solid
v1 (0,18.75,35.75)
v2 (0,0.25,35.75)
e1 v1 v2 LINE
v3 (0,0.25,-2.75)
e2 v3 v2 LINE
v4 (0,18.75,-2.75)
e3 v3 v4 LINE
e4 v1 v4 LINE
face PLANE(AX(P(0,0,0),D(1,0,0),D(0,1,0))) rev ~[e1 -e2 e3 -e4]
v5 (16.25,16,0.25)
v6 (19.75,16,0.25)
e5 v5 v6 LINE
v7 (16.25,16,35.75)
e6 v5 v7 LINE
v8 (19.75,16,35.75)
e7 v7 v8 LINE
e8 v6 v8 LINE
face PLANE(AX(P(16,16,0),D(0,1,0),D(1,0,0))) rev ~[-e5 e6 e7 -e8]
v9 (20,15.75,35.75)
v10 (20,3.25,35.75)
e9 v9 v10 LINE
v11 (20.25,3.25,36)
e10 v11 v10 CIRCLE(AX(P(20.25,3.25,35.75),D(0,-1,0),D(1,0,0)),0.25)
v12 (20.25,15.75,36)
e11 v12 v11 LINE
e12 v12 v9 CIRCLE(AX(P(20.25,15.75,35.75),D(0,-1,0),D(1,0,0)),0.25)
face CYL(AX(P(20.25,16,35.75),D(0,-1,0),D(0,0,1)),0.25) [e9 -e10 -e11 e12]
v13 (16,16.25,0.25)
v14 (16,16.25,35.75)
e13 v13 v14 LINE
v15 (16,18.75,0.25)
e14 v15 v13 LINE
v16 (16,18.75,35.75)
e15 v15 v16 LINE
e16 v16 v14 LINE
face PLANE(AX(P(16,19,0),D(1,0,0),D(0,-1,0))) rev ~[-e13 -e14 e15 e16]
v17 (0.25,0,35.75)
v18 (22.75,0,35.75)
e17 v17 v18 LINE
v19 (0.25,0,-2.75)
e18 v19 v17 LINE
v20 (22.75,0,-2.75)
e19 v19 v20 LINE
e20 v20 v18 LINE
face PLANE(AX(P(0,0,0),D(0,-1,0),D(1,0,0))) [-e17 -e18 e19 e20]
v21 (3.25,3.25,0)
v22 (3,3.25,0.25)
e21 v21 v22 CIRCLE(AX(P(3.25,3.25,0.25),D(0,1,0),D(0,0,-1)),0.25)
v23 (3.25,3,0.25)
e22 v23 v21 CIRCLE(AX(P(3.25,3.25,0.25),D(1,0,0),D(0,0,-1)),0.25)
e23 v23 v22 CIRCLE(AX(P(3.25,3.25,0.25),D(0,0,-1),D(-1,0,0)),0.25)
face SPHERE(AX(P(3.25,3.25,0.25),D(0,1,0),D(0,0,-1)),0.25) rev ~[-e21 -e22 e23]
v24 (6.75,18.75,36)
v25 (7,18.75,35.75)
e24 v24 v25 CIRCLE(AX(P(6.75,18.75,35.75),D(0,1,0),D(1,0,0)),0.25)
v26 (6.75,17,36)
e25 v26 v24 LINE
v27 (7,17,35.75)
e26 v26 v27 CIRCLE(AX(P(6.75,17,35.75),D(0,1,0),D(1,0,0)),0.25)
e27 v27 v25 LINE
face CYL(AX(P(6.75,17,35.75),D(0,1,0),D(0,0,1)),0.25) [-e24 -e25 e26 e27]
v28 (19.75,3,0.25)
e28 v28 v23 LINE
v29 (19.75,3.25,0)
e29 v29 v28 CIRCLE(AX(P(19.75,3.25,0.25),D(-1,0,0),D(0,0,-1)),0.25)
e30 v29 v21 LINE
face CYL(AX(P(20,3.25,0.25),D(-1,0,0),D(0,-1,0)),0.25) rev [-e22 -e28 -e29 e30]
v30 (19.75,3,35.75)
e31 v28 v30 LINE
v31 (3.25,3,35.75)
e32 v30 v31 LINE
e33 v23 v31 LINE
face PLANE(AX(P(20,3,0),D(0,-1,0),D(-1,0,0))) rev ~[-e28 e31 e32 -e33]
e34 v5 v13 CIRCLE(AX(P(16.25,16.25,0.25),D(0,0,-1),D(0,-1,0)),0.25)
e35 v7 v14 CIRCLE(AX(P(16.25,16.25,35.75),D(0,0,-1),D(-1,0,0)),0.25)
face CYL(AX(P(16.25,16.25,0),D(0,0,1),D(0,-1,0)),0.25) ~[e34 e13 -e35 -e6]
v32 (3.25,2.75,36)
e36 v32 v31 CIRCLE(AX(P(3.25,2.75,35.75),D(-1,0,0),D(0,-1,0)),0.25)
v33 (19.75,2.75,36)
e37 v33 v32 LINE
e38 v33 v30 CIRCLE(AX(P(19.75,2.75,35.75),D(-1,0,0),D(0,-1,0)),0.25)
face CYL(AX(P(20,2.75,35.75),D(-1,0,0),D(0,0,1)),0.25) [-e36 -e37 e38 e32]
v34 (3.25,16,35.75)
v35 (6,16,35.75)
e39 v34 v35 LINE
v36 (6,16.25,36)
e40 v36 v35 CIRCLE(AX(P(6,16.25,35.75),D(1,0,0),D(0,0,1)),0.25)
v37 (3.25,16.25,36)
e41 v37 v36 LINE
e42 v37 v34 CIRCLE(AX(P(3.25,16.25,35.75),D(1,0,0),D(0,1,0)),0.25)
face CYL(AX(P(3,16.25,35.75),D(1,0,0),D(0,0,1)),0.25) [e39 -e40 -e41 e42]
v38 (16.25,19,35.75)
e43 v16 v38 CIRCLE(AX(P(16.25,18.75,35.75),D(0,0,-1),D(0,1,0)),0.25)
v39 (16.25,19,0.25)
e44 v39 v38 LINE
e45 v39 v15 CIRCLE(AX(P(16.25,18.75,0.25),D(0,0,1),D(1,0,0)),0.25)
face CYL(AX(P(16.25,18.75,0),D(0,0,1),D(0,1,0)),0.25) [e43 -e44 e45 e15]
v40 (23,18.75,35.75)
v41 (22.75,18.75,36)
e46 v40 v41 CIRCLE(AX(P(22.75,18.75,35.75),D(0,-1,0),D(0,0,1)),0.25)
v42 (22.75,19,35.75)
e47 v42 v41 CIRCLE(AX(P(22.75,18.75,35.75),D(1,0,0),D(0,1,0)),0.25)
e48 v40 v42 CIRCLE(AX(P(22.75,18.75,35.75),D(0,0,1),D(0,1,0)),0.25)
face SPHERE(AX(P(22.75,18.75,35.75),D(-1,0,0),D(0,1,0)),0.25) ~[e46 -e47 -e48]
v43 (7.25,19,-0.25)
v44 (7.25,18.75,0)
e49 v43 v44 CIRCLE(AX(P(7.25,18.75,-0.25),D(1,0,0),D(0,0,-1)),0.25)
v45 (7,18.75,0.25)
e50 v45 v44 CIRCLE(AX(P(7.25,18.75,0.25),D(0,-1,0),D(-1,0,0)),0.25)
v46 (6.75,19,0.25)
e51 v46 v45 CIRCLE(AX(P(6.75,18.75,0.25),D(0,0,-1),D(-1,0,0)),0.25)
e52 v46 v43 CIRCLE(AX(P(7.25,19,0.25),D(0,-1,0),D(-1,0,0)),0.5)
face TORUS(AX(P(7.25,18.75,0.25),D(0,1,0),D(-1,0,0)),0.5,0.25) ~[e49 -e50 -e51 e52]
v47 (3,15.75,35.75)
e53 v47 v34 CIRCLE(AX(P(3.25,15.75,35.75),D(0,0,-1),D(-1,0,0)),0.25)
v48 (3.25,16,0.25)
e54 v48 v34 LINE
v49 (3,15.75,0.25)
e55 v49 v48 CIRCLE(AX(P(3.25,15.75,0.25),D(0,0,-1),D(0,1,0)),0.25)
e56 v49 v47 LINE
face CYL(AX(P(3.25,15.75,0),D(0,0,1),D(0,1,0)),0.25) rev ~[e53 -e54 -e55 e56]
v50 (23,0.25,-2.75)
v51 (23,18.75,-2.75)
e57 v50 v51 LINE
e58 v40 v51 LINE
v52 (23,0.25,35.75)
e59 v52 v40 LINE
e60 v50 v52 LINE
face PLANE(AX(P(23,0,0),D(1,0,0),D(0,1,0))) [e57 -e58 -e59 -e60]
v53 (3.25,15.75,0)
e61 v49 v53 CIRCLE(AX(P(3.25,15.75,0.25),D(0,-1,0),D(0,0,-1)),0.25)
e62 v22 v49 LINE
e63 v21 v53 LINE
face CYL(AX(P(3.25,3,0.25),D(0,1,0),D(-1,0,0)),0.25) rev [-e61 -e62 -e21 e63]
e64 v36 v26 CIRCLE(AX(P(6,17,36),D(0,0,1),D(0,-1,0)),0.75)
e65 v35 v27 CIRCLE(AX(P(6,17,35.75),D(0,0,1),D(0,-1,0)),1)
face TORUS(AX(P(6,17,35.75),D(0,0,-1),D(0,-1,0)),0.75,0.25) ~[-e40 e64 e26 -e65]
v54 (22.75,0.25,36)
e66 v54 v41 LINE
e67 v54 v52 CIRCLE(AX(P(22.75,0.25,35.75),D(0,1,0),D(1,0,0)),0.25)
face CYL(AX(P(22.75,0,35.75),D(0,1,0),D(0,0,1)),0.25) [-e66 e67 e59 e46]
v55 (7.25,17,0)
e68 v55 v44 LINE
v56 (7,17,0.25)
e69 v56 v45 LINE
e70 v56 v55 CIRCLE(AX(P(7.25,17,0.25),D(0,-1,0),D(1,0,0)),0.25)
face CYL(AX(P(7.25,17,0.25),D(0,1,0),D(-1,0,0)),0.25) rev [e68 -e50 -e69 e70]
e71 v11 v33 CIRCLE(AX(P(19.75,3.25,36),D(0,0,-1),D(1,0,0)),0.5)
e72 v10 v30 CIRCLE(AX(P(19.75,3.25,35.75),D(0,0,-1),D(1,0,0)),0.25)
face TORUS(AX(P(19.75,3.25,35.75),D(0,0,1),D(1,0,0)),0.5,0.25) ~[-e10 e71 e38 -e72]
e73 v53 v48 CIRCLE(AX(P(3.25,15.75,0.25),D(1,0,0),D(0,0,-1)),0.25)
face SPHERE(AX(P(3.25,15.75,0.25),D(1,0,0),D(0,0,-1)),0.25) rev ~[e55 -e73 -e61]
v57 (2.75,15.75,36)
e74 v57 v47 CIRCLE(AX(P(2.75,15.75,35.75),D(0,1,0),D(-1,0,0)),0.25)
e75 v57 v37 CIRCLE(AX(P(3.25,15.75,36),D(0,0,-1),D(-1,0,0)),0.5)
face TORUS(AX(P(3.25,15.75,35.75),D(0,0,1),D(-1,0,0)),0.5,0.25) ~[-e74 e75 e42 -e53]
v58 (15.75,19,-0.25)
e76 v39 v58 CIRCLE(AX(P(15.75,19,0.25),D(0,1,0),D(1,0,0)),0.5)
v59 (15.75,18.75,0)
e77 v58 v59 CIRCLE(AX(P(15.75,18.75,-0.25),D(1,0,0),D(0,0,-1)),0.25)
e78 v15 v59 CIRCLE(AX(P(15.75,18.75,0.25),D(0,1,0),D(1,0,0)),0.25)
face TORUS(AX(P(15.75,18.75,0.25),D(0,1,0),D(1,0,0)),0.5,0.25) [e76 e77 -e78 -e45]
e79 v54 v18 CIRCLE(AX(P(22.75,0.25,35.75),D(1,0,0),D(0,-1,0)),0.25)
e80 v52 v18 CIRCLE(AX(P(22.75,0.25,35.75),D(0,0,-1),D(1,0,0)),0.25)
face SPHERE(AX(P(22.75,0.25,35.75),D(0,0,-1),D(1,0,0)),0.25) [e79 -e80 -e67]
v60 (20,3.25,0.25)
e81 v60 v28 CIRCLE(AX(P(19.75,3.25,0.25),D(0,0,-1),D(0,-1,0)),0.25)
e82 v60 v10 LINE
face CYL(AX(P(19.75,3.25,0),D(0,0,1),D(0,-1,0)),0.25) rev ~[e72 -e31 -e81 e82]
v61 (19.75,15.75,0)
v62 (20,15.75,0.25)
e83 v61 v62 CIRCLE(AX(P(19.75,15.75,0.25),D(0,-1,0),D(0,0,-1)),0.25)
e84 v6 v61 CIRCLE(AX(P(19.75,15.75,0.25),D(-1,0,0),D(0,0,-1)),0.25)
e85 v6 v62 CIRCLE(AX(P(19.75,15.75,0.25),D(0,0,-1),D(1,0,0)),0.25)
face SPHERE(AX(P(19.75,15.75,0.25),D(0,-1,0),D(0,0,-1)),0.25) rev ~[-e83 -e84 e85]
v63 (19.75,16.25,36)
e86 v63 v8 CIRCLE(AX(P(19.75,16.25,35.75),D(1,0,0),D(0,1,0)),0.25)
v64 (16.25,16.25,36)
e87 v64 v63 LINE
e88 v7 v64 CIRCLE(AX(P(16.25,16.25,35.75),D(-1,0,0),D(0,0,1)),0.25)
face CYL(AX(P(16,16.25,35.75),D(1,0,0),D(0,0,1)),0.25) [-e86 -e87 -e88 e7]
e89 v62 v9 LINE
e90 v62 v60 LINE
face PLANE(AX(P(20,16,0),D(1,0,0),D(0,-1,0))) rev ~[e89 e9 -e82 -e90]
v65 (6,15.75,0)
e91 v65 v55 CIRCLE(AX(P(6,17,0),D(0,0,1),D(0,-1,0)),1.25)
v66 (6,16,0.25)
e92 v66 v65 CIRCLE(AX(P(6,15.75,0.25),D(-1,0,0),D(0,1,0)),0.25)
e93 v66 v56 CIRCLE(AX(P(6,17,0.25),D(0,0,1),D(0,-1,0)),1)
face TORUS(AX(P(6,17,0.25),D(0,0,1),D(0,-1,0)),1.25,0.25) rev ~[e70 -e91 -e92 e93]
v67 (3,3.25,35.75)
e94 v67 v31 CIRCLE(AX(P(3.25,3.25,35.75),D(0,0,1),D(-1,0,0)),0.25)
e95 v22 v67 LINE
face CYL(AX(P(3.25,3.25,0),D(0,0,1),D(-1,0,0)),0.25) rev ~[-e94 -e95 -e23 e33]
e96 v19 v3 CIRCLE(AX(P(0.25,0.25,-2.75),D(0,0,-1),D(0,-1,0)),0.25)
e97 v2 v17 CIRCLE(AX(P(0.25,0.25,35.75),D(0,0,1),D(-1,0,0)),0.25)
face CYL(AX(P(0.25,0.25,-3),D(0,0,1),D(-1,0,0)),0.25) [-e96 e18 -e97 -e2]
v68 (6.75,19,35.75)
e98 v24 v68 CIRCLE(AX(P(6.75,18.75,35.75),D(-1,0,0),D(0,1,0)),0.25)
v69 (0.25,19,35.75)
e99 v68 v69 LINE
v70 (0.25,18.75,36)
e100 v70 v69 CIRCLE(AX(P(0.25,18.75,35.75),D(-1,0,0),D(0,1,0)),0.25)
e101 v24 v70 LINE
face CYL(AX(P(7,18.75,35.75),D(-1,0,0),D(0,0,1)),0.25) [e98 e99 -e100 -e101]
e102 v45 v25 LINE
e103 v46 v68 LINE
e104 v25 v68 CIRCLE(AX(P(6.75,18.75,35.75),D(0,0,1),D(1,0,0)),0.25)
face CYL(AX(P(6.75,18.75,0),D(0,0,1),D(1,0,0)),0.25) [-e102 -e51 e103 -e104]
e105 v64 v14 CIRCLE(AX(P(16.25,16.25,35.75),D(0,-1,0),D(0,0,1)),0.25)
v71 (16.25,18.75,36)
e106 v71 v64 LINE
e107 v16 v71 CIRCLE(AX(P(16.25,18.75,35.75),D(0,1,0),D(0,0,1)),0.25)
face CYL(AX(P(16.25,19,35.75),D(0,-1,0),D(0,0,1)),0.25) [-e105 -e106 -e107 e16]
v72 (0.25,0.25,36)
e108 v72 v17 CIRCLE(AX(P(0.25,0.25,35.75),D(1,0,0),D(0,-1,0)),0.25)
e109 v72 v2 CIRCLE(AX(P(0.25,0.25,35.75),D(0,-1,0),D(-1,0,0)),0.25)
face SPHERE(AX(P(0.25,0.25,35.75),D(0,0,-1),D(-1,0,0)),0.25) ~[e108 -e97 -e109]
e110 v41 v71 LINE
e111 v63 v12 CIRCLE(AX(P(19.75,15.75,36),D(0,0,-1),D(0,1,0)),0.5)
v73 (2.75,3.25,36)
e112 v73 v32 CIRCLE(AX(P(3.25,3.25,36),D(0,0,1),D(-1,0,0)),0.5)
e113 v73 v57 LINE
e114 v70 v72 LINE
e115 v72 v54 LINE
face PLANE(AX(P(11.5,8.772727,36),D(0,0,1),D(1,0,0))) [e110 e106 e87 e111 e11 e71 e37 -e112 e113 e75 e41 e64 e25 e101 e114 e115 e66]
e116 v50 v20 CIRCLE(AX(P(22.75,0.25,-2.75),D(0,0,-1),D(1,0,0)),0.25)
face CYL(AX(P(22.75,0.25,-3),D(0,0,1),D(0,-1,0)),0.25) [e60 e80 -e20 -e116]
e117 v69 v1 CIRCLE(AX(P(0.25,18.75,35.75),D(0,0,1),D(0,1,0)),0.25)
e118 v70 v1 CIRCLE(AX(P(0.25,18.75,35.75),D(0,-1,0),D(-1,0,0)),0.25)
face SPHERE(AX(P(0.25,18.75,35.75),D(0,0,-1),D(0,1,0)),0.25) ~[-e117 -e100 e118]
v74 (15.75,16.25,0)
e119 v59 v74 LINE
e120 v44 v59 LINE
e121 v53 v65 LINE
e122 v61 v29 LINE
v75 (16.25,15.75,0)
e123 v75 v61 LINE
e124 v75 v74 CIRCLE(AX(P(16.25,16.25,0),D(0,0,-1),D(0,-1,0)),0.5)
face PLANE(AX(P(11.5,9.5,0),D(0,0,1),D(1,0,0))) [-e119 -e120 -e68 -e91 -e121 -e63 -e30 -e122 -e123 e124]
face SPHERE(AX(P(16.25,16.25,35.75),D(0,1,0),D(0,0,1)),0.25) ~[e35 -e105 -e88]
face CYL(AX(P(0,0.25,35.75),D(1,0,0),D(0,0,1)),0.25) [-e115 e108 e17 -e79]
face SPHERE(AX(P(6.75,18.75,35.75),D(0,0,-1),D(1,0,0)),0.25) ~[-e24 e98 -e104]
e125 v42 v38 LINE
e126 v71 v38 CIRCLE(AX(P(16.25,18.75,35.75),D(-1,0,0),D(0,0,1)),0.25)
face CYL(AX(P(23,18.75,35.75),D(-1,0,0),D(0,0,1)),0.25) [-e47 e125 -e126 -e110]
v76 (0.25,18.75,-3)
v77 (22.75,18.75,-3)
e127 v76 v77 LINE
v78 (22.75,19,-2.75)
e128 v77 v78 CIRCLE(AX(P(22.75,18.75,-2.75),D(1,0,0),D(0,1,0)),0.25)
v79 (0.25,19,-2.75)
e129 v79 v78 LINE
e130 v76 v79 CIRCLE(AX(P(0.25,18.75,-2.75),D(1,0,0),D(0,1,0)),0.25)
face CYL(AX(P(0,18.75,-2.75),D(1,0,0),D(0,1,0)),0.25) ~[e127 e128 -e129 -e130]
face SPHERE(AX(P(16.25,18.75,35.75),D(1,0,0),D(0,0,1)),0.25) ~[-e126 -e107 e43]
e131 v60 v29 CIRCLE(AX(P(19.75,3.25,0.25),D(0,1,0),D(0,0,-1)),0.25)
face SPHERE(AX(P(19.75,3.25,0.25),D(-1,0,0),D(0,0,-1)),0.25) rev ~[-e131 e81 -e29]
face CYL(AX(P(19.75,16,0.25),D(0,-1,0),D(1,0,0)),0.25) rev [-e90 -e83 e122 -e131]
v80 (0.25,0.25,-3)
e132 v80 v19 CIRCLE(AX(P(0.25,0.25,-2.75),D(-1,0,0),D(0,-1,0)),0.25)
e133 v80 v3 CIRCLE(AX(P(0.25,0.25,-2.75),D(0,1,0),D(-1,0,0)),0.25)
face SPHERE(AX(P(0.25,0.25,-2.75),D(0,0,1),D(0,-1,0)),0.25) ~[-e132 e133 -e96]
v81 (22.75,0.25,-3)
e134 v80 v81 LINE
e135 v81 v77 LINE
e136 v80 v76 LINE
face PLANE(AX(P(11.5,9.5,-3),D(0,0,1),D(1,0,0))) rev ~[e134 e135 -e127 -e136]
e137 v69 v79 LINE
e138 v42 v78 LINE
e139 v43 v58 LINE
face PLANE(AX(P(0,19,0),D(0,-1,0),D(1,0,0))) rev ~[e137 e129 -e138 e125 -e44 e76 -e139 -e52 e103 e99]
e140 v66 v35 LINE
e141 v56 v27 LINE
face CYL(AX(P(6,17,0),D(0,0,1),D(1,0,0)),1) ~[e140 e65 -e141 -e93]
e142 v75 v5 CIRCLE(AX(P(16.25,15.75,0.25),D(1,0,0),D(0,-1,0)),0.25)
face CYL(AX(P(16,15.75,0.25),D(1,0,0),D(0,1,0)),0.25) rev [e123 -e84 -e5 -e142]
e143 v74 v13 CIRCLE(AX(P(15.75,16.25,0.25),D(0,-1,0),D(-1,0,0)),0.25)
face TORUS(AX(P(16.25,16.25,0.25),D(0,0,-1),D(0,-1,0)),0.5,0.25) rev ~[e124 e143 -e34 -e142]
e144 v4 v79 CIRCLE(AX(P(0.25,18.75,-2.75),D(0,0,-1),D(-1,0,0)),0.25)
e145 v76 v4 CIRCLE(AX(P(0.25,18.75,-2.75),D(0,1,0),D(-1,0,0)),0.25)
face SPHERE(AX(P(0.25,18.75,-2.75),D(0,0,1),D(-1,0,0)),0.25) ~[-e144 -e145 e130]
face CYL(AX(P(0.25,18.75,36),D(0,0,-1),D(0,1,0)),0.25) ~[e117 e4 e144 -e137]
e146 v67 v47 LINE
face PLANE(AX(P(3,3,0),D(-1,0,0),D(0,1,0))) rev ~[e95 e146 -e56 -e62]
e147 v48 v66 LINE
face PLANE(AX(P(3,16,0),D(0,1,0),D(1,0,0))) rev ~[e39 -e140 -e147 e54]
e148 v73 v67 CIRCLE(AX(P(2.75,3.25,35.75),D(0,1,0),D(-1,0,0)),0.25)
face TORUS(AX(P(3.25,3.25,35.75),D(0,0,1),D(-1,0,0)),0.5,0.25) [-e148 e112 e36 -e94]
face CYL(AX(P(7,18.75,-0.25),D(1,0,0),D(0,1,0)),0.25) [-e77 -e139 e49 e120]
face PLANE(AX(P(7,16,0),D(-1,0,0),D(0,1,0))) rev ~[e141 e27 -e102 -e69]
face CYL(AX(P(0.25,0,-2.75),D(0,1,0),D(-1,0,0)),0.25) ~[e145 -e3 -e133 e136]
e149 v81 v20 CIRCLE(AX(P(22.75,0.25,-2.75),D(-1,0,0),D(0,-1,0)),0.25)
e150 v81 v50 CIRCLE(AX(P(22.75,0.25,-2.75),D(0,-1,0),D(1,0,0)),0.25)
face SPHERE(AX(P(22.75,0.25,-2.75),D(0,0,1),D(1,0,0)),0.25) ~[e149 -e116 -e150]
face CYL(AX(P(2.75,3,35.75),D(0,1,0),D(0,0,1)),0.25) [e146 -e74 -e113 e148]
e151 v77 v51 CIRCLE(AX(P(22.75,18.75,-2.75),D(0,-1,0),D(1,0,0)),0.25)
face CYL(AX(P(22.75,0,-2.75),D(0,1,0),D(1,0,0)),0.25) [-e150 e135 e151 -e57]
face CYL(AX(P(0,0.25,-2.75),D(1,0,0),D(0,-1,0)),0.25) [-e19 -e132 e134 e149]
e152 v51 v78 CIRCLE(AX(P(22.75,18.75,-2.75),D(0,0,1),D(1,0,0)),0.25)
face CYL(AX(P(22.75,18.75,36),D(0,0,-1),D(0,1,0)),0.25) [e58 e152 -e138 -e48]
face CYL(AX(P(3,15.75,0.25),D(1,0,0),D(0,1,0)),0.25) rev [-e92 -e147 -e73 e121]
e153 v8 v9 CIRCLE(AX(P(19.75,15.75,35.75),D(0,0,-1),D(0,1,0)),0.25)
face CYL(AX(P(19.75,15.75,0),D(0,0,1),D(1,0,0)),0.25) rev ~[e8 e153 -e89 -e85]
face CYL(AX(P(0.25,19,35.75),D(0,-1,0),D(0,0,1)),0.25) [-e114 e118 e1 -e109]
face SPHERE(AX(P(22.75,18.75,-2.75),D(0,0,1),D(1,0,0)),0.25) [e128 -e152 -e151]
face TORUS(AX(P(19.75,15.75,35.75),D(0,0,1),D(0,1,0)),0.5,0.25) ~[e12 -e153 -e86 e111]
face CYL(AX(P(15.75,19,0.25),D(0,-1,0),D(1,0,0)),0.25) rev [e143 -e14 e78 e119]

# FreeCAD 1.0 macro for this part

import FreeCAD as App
import Part
import Sketcher
from FreeCAD import Vector
Q = App.Units.Quantity


def edges_at(feature, points):
    """Names of the edges that pass closest to the given points."""
    edges = feature.Shape.Edges
    near = lambda p: min(range(len(edges)), key=lambda i: edges[i].distToShape(Part.Vertex(*p))[0])
    return sorted({f"Edge{near(p) + 1}" for p in points})

doc = App.newDocument("Part")
body = doc.addObject("PartDesign::Body", "Body")

# Sketch on XY plane
sketch1 = body.newObject("Sketcher::SketchObject", "Sketch")
sketch1.AttachmentSupport = (doc.getObject("XY_Plane"), [""])
sketch1.MapMode = "FlatFace"
sketch1.addGeometry([
    Part.LineSegment(Vector(0, 0, 0), Vector(23, 0, 0)),  # 0
    Part.LineSegment(Vector(23, 0, 0), Vector(23, 19, 0)),  # 1
    Part.LineSegment(Vector(23, 19, 0), Vector(16, 19, 0)),  # 2
    Part.LineSegment(Vector(16, 19, 0), Vector(16, 16, 0)),  # 3
    Part.LineSegment(Vector(16, 16, 0), Vector(20, 16, 0)),  # 4
    Part.LineSegment(Vector(20, 16, 0), Vector(20, 3, 0)),  # 5
    Part.LineSegment(Vector(20, 3, 0), Vector(3, 3, 0)),  # 6
    Part.LineSegment(Vector(3, 3, 0), Vector(3, 16, 0)),  # 7
    Part.LineSegment(Vector(3, 16, 0), Vector(7, 16, 0)),  # 8
    Part.LineSegment(Vector(7, 16, 0), Vector(7, 19, 0)),  # 9
    Part.LineSegment(Vector(7, 19, 0), Vector(0, 19, 0)),  # 10
    Part.LineSegment(Vector(0, 19, 0), Vector(0, 0, 0)),  # 11
], False)
sketch1.addConstraint([
    Sketcher.Constraint("Coincident", 0, 2, 1, 1),
    Sketcher.Constraint("Coincident", 1, 2, 2, 1),
    Sketcher.Constraint("Coincident", 2, 2, 3, 1),
    Sketcher.Constraint("Coincident", 3, 2, 4, 1),
    Sketcher.Constraint("Coincident", 4, 2, 5, 1),
    Sketcher.Constraint("Coincident", 5, 2, 6, 1),
    Sketcher.Constraint("Coincident", 6, 2, 7, 1),
    Sketcher.Constraint("Coincident", 7, 2, 8, 1),
    Sketcher.Constraint("Coincident", 8, 2, 9, 1),
    Sketcher.Constraint("Coincident", 9, 2, 10, 1),
    Sketcher.Constraint("Coincident", 10, 2, 11, 1),
    Sketcher.Constraint("Coincident", 11, 2, 0, 1),
    Sketcher.Constraint("Horizontal", 0),
    Sketcher.Constraint("Vertical", 1),
    Sketcher.Constraint("Horizontal", 2),
    Sketcher.Constraint("Vertical", 3),
    Sketcher.Constraint("Horizontal", 4),
    Sketcher.Constraint("Vertical", 5),
    Sketcher.Constraint("Horizontal", 6),
    Sketcher.Constraint("Vertical", 7),
    Sketcher.Constraint("Horizontal", 8),
    Sketcher.Constraint("Vertical", 9),
    Sketcher.Constraint("Horizontal", 10),
    Sketcher.Constraint("Vertical", 11),
    Sketcher.Constraint("Coincident", 11, 2, -1, 1),
    Sketcher.Constraint("Horizontal", 4, 2, 7, 2),
    Sketcher.Constraint("Horizontal", 2, 2, 9, 2),
    Sketcher.Constraint("Equal", 4, 8),
    Sketcher.Constraint("Equal", 2, 10),
    Sketcher.Constraint("DistanceX", 0, 1, 0, 2, Q("23 mm")),
    Sketcher.Constraint("DistanceX", 2, 2, 2, 1, Q("7 mm")),
    Sketcher.Constraint("DistanceX", 4, 1, 4, 2, Q("4 mm")),
    Sketcher.Constraint("DistanceY", 1, 1, 1, 2, Q("19 mm")),
    Sketcher.Constraint("DistanceY", 3, 2, 3, 1, Q("3 mm")),
    Sketcher.Constraint("DistanceY", 5, 2, 5, 1, Q("13 mm")),
])
pad1 = body.newObject("PartDesign::Pad", "Pad")
pad1.Profile = sketch1
pad1.Length = 36

# Sketch on XY plane
sketch2 = body.newObject("Sketcher::SketchObject", "Sketch001")
sketch2.AttachmentSupport = (doc.getObject("XY_Plane"), [""])
sketch2.MapMode = "FlatFace"
sketch2.addGeometry([
    Part.LineSegment(Vector(0, 19, 0), Vector(0, 0, 0)),
    Part.LineSegment(Vector(0, 0, 0), Vector(23, 0, 0)),
    Part.LineSegment(Vector(23, 0, 0), Vector(23, 19, 0)),
    Part.LineSegment(Vector(23, 19, 0), Vector(0, 19, 0)),
], False)
sketch2.addConstraint([
    Sketcher.Constraint("Coincident", 0, 2, 1, 1),
    Sketcher.Constraint("Coincident", 1, 2, 2, 1),
    Sketcher.Constraint("Coincident", 2, 2, 3, 1),
    Sketcher.Constraint("Coincident", 3, 2, 0, 1),
    Sketcher.Constraint("Vertical", 0),
    Sketcher.Constraint("Horizontal", 1),
    Sketcher.Constraint("Vertical", 2),
    Sketcher.Constraint("Horizontal", 3),
    Sketcher.Constraint("Coincident", 0, 2, -1, 1),
    Sketcher.Constraint("DistanceX", 1, 1, 1, 2, Q("23 mm")),
    Sketcher.Constraint("DistanceY", 0, 2, 0, 1, Q("19 mm")),
])
pad2 = body.newObject("PartDesign::Pad", "Pad001")
pad2.Profile = sketch2
pad2.Length = 3
pad2.Reversed = True
doc.recompute()

fillet = body.newObject("PartDesign::Fillet", "Fillet")
fillet.Base = (pad2, edges_at(pad2, [(7, 16, 18)]))
fillet.Radius = 1
doc.recompute()

fillet2 = body.newObject("PartDesign::Fillet", "Fillet001")
fillet2.Base = (fillet, ["Edge1"])
fillet2.UseAllEdges = True
fillet2.Radius = 0.25

doc.recompute()
